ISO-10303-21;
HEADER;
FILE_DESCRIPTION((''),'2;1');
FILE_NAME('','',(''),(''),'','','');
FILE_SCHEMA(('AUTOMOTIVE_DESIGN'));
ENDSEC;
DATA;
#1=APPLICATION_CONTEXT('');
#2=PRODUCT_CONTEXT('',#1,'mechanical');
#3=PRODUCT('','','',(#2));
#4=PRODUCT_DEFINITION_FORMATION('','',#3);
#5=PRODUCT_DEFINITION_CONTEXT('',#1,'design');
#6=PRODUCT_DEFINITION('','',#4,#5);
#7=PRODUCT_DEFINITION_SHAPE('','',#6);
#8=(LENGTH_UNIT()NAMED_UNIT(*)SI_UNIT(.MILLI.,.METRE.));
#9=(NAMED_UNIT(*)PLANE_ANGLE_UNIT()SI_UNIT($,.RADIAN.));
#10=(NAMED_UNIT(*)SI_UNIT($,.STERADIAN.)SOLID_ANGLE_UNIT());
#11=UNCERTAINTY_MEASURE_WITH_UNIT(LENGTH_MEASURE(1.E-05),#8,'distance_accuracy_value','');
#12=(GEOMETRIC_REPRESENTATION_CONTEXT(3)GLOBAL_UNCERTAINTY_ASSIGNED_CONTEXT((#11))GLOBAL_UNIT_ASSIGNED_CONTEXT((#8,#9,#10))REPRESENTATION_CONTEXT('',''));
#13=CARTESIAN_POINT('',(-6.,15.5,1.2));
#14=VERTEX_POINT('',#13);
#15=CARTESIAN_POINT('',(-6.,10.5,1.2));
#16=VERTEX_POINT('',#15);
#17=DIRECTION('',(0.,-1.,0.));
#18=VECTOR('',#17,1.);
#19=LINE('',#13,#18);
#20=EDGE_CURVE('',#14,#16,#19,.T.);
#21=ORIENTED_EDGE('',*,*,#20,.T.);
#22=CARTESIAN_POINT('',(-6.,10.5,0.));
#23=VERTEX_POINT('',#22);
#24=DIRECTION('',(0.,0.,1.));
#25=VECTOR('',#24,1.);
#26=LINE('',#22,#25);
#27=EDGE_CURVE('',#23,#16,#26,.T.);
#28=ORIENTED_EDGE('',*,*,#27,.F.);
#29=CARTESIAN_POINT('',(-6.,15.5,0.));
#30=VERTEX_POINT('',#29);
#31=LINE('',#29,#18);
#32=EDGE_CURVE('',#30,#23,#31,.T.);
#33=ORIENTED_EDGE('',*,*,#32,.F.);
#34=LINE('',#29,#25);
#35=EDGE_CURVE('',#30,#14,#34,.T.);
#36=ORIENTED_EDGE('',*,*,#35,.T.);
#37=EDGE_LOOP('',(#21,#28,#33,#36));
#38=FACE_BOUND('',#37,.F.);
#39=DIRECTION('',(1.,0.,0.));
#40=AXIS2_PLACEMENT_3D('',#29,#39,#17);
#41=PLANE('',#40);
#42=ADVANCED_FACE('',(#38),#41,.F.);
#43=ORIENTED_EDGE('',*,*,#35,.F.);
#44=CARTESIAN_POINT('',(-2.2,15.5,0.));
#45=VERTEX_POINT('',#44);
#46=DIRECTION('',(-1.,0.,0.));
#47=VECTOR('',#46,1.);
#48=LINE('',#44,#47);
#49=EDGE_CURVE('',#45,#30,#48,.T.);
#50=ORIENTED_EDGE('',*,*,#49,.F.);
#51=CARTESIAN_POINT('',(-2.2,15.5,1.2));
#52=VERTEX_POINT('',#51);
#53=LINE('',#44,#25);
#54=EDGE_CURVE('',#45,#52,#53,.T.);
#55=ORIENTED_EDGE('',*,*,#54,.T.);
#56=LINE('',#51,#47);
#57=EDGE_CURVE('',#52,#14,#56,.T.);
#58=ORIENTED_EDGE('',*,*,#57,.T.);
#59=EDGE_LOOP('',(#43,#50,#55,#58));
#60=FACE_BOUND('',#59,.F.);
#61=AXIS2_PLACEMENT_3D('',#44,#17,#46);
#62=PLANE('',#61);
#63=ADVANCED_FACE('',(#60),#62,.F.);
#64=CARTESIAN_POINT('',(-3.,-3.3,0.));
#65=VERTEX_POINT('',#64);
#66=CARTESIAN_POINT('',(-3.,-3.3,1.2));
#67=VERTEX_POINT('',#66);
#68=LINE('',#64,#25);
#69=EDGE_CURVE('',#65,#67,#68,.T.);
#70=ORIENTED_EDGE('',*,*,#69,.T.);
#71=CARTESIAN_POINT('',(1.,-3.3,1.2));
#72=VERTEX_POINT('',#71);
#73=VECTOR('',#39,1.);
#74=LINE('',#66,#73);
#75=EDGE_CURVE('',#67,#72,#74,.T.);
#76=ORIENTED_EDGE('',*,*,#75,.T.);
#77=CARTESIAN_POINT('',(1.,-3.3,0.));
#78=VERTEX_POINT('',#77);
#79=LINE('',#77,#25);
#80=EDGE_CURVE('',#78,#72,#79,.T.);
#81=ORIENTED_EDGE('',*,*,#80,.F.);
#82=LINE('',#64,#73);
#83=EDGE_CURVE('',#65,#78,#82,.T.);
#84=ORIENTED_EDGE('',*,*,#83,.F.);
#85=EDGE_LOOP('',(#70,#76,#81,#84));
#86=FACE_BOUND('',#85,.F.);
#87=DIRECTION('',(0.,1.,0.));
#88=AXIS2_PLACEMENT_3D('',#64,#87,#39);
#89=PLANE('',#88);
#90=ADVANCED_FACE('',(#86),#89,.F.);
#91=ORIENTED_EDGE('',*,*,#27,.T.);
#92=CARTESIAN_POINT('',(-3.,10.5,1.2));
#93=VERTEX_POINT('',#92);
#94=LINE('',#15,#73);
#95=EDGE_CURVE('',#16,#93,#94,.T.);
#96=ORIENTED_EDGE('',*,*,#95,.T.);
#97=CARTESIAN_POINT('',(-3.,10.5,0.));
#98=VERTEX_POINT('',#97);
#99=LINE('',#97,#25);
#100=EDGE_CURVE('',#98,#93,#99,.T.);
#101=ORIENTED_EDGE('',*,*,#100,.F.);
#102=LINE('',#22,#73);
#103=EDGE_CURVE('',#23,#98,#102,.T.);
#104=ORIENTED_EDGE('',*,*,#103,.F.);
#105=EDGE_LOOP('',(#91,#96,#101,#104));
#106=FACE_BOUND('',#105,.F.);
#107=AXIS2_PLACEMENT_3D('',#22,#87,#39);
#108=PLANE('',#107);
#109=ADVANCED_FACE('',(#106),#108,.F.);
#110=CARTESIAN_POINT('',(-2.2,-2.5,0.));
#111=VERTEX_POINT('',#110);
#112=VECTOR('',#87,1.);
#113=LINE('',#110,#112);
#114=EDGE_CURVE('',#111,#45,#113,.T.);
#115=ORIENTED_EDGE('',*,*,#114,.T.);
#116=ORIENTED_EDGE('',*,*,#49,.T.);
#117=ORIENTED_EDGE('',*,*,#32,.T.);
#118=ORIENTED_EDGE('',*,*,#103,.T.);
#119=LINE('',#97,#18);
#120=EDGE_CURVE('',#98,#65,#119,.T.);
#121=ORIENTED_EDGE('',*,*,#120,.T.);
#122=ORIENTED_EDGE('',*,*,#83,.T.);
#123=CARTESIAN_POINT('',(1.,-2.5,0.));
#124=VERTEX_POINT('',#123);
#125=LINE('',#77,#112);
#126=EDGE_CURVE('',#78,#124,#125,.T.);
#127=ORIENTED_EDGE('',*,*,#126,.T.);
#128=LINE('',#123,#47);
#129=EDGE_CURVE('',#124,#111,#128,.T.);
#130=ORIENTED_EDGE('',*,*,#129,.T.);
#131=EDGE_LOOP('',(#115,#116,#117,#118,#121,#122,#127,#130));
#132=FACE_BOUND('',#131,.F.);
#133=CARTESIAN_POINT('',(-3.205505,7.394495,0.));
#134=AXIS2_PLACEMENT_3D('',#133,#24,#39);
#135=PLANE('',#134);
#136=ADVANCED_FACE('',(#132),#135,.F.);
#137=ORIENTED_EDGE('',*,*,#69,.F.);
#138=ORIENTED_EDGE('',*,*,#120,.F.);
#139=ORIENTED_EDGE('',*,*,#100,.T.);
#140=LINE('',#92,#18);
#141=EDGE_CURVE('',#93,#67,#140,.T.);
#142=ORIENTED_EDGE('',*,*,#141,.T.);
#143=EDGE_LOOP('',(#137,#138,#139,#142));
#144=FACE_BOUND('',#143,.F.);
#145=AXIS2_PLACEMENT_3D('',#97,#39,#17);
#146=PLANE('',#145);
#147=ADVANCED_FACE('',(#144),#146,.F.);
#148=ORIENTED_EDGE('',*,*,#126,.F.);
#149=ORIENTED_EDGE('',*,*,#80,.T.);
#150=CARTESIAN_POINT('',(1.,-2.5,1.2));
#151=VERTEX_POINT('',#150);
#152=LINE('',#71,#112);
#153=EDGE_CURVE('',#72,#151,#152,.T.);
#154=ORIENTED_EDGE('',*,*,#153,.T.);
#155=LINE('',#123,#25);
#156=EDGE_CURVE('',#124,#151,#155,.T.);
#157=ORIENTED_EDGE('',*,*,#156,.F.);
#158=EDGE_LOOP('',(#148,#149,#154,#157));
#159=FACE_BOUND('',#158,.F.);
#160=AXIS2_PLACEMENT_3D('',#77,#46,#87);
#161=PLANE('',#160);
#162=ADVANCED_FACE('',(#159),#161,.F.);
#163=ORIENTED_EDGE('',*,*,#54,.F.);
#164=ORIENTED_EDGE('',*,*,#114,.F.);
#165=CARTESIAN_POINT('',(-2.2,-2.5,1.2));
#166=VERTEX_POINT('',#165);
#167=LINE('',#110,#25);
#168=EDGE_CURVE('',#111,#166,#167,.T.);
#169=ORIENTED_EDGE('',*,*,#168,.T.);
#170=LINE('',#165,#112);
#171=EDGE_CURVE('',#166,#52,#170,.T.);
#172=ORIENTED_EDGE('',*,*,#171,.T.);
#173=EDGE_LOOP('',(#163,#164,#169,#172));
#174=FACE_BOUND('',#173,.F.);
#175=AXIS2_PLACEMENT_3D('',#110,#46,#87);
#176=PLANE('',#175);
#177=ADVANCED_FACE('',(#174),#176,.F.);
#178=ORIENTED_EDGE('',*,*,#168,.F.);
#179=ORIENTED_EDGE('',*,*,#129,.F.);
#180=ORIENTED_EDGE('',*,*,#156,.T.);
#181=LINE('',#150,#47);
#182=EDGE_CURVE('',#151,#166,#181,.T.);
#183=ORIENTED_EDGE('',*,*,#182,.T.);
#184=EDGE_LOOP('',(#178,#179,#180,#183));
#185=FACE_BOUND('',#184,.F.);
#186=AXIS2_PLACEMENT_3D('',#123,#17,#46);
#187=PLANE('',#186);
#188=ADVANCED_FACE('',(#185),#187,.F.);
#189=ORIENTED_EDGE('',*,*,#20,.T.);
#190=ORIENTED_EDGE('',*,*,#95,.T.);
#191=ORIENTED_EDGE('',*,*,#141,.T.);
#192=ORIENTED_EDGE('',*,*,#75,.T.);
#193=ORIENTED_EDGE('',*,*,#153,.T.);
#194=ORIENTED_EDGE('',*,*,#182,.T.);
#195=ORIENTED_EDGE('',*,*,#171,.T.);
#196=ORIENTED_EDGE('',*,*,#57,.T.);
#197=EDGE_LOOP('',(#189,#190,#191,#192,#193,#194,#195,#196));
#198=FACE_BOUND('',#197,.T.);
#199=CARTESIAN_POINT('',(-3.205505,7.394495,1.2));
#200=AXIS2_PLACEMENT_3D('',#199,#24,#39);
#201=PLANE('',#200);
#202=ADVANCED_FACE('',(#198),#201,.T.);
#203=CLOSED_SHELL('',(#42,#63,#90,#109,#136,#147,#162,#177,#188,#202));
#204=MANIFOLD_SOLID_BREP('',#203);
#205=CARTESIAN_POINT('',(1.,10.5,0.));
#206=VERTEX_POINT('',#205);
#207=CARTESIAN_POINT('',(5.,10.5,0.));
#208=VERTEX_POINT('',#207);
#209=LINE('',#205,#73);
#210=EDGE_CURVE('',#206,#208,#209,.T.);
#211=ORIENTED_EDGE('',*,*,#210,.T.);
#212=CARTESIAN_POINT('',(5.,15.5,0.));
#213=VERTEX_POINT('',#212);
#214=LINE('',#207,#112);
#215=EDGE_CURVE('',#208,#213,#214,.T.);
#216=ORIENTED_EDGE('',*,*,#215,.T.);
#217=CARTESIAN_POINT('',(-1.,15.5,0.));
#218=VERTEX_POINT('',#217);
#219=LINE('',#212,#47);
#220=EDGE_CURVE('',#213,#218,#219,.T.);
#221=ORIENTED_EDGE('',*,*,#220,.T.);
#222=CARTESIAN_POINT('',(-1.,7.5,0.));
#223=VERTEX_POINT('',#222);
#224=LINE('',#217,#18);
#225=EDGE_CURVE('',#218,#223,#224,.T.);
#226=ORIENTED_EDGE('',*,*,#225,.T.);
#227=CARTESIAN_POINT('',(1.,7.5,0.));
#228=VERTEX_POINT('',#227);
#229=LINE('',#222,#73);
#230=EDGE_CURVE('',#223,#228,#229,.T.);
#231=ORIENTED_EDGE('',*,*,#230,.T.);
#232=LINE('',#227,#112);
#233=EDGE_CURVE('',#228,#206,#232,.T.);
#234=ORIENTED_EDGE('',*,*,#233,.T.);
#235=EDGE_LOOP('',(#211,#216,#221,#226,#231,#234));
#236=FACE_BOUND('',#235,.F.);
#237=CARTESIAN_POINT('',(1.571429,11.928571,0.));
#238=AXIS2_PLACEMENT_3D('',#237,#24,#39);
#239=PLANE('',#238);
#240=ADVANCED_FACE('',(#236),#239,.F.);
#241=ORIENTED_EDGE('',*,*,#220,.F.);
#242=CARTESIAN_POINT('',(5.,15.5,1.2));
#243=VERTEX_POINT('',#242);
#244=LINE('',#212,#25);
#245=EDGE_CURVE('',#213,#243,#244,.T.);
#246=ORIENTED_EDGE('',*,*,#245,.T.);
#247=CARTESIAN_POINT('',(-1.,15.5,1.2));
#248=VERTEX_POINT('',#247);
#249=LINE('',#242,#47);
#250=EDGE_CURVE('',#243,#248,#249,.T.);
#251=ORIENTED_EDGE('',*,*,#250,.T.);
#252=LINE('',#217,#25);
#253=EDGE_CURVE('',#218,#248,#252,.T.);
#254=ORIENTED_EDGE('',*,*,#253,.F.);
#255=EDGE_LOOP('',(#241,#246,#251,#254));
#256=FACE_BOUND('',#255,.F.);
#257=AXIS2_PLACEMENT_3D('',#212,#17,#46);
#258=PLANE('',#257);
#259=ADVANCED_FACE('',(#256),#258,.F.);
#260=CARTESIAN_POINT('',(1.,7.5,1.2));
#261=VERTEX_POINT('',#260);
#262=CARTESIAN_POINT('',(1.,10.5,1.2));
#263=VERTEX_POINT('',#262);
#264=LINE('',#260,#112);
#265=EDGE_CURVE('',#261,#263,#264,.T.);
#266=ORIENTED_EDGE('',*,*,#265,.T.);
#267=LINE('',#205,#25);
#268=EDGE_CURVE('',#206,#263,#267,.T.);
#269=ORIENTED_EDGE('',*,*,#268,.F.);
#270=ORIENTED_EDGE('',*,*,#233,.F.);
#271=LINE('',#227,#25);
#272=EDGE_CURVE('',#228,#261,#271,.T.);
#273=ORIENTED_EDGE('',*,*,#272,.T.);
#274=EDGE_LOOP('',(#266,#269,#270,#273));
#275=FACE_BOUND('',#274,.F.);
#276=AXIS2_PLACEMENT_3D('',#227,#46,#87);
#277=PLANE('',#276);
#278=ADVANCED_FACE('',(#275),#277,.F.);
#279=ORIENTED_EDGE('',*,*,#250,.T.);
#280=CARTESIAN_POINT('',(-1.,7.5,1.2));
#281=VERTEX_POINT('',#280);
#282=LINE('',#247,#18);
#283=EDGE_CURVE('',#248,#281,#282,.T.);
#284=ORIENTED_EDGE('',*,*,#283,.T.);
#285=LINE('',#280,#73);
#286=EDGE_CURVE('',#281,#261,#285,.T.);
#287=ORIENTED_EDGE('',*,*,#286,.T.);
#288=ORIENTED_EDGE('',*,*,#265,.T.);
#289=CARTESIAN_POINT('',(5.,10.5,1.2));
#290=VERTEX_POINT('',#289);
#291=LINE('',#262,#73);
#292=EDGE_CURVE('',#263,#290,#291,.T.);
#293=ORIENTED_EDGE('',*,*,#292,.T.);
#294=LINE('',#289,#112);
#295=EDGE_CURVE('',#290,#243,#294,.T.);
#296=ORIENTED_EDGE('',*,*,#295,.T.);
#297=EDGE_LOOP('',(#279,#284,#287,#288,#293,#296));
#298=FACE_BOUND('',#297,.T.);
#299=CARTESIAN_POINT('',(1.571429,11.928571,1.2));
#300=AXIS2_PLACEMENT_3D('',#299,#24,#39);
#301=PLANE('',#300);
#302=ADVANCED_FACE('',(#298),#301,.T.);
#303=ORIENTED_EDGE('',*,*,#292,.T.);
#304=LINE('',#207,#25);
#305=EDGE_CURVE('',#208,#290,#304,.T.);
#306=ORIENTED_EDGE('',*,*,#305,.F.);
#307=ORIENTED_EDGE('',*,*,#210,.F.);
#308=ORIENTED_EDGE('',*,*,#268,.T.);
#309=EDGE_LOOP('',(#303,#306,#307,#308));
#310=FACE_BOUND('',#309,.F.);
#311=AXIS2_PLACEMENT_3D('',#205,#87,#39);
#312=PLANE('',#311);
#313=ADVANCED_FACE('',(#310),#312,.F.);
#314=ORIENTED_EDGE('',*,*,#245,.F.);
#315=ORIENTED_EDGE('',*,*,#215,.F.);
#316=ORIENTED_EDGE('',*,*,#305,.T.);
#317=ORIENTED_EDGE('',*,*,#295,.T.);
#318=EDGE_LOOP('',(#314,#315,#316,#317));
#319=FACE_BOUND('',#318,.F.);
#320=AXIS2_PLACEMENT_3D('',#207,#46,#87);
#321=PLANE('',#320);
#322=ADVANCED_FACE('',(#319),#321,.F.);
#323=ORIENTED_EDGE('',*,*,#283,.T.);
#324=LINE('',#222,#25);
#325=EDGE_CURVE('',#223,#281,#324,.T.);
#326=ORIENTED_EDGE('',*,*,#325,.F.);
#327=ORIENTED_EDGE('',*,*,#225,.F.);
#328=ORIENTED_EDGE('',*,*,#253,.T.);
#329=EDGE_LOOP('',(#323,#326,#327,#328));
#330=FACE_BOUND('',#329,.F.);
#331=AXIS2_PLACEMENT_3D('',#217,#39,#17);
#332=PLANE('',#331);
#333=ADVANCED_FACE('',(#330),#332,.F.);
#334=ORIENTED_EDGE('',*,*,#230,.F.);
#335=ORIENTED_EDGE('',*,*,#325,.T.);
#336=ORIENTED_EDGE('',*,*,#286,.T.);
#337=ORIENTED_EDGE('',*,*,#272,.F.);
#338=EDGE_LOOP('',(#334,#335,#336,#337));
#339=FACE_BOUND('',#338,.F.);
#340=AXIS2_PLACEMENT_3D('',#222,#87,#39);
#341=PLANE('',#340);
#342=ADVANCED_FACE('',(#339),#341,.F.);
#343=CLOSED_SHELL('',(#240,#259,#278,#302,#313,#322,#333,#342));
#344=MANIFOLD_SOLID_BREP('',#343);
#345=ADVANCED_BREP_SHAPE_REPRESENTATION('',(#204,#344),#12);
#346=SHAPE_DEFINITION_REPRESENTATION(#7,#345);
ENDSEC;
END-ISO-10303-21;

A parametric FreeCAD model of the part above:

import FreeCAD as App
import Part
import Sketcher


def add_polygon(sketch, points):
    """Adds a closed chain of lines whose ends are joined by coincident constraints."""
    first, n = sketch.GeometryCount, len(points)
    for a, b in zip(points, points[1:] + points[:1]):
        sketch.addGeometry(Part.LineSegment(App.Vector(*a, 0), App.Vector(*b, 0)), False)
    for i in range(n):
        sketch.addConstraint(Sketcher.Constraint("Coincident", first + i, 2, first + (i + 1) % n, 1))

doc = App.newDocument("Part")
body = doc.addObject("PartDesign::Body", "Body")
body.AllowCompound = True

sketch1 = body.newObject("Sketcher::SketchObject", "Sketch")
sketch1.AttachmentSupport = (doc.getObject("XY_Plane"), [""])
sketch1.MapMode = "FlatFace"
add_polygon(sketch1, [(-2.2, -2.5), (-2.2, 15.5), (-6, 15.5), (-6, 10.5), (-3, 10.5), (-3, -3.3), (1, -3.3), (1, -2.5)])
add_polygon(sketch1, [(-1, 7.5), (1, 7.5), (1, 10.5), (5, 10.5), (5, 15.5), (-1, 15.5)])
sketch1.addConstraint([
    Sketcher.Constraint("Vertical", 0),
    Sketcher.Constraint("Horizontal", 1),
    Sketcher.Constraint("Vertical", 2),
    Sketcher.Constraint("Horizontal", 3),
    Sketcher.Constraint("Vertical", 4),
    Sketcher.Constraint("Horizontal", 5),
    Sketcher.Constraint("Vertical", 6),
    Sketcher.Constraint("Horizontal", 7),
    Sketcher.Constraint("Horizontal", 8),
    Sketcher.Constraint("Vertical", 9),
    Sketcher.Constraint("Horizontal", 10),
    Sketcher.Constraint("Vertical", 11),
    Sketcher.Constraint("Horizontal", 12),
    Sketcher.Constraint("Vertical", 13),
    Sketcher.Constraint("Horizontal", 3, 2, 9, 2),
    Sketcher.Constraint("Horizontal", 1, 2, 11, 2),
    Sketcher.Constraint("Vertical", 6, 2, 8, 2),
    Sketcher.Constraint("Equal", 5, 10),
    Sketcher.Constraint("Equal", 3, 9),
    Sketcher.Constraint("DistanceX", 3, 1, 3, 2, 3.0),
    Sketcher.Constraint("DistanceX", 5, 1, 5, 2, 4.0),
    Sketcher.Constraint("DistanceX", 8, 1, 8, 2, 2.0),
    Sketcher.Constraint("DistanceY", 0, 1, 0, 2, 18.0),
    Sketcher.Constraint("DistanceY", 2, 2, 2, 1, 5.0),
    Sketcher.Constraint("DistanceX", 1, 2, 1, 1, 3.8),
    Sketcher.Constraint("DistanceY", 4, 2, 4, 1, 13.8),
    Sketcher.Constraint("DistanceX", 1, 2, -1, 1, 6.0),
    Sketcher.Constraint("DistanceY", -1, 1, 0, 2, 15.5),
])
pad1 = body.newObject("PartDesign::Pad", "Pad")
pad1.Profile = sketch1
pad1.Length = 1.2

doc.recompute()
